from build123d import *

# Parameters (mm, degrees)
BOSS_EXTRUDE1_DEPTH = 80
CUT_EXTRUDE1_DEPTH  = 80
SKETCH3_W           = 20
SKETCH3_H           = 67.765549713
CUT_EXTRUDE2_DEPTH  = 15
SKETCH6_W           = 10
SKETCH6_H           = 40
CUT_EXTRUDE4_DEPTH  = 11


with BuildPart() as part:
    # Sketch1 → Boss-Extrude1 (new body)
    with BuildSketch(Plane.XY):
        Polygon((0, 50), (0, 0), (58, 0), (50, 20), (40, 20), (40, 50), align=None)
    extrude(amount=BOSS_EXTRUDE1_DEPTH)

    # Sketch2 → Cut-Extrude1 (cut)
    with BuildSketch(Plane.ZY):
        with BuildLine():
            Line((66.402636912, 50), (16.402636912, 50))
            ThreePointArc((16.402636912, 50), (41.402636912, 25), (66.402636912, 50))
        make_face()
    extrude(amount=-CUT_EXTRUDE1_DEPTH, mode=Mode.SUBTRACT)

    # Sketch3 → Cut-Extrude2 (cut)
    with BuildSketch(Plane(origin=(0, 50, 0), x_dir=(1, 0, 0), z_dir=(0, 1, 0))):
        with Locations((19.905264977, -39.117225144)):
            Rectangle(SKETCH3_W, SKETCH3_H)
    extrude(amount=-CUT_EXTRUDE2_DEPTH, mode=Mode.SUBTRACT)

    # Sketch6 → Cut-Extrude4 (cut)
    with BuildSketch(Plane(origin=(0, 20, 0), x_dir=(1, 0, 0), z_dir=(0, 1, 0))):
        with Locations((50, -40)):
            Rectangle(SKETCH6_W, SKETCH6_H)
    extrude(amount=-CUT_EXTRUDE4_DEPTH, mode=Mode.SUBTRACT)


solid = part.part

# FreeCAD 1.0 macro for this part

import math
import FreeCAD as App
import Part
import Sketcher

V = App.Vector


def add_polygon(sketch, points):
    """Adds a closed chain of lines whose ends are joined by coincident constraints."""
    first, n = sketch.GeometryCount, len(points)
    for a, b in zip(points, points[1:] + points[:1]):
        sketch.addGeometry(Part.LineSegment(App.Vector(*a, 0), App.Vector(*b, 0)), False)
    for i in range(n):
        sketch.addConstraint(Sketcher.Constraint("Coincident", first + i, 2, first + (i + 1) % n, 1))

doc = App.newDocument("Part")
body = doc.addObject("PartDesign::Body", "Body")

# Sketch on XY plane
sketch1 = doc.addObject("Sketcher::SketchObject", "Sketch")
body.addObject(sketch1)
sketch1.AttachmentSupport = (doc.XY_Plane, [""])
sketch1.MapMode = "FlatFace"
add_polygon(sketch1, [(0, 50), (0, 0), (58, 0), (50, 20), (40, 20), (40, 50)])  # lines 0-5
sketch1.addConstraint(Sketcher.Constraint("Vertical", 0))
sketch1.addConstraint(Sketcher.Constraint("Horizontal", 1))
sketch1.addConstraint(Sketcher.Constraint("Horizontal", 3))
sketch1.addConstraint(Sketcher.Constraint("Vertical", 4))
sketch1.addConstraint(Sketcher.Constraint("Horizontal", 5))
sketch1.addConstraint(Sketcher.Constraint("Coincident", 0, 2, -1, 1))
sketch1.addConstraint(Sketcher.Constraint("DistanceX", 1, 1, 1, 2, 58.0))
sketch1.addConstraint(Sketcher.Constraint("DistanceX", 3, 2, 3, 1, 10.0))
sketch1.addConstraint(Sketcher.Constraint("DistanceX", 5, 2, 5, 1, 40.0))
sketch1.addConstraint(Sketcher.Constraint("DistanceY", 0, 2, 0, 1, 50.0))
sketch1.addConstraint(Sketcher.Constraint("DistanceY", 4, 1, 4, 2, 30.0))
pad1 = doc.addObject("PartDesign::Pad", "Pad")
body.addObject(pad1)
pad1.Profile = sketch1
pad1.Length = 80

# Sketch on YZ plane
sketch2 = doc.addObject("Sketcher::SketchObject", "Sketch001")
body.addObject(sketch2)
sketch2.AttachmentSupport = (doc.YZ_Plane, [""])
sketch2.MapMode = "FlatFace"
sketch2.addGeometry(Part.LineSegment(V(50, 66.402637, 0), V(50, 16.402637, 0)), False)
sketch2.addGeometry(Part.ArcOfCircle(Part.Circle(V(50, 41.402637, 0), V(0, 0, 1), 25), math.radians(90), math.radians(270)), False)
sketch2.addConstraint(Sketcher.Constraint("Coincident", 0, 1, 1, 1))
sketch2.addConstraint(Sketcher.Constraint("Coincident", 1, 2, 0, 2))
sketch2.addConstraint(Sketcher.Constraint("Vertical", 0))
sketch2.addConstraint(Sketcher.Constraint("Vertical", 1, 3, 0, 1))
sketch2.addConstraint(Sketcher.Constraint("Radius", 1, 25.0))
sketch2.addConstraint(Sketcher.Constraint("DistanceX", -1, 1, 1, 3, 50.0))
sketch2.addConstraint(Sketcher.Constraint("DistanceY", -1, 1, 1, 3, 41.402637))
pocket1 = doc.addObject("PartDesign::Pocket", "Pocket")
body.addObject(pocket1)
pocket1.Profile = sketch2
pocket1.Length = 80
pocket1.Reversed = True

# Sketch on XZ plane
sketch3 = doc.addObject("Sketcher::SketchObject", "Sketch002")
body.addObject(sketch3)
sketch3.AttachmentSupport = (doc.XZ_Plane, [""])
sketch3.MapMode = "FlatFace"
sketch3.AttachmentOffset = App.Placement(V(0, 0, -50), App.Rotation())
add_polygon(sketch3, [(9.905265, 5.23445), (9.905265, 73), (29.905265, 73), (29.905265, 5.23445)])  # lines 0-3
sketch3.addConstraint(Sketcher.Constraint("Vertical", 0))
sketch3.addConstraint(Sketcher.Constraint("Horizontal", 1))
sketch3.addConstraint(Sketcher.Constraint("Vertical", 2))
sketch3.addConstraint(Sketcher.Constraint("Horizontal", 3))
sketch3.addConstraint(Sketcher.Constraint("DistanceX", 1, 1, 1, 2, 20.0))
sketch3.addConstraint(Sketcher.Constraint("DistanceY", -1, 1, 0, 2, 73.0))
sketch3.addConstraint(Sketcher.Constraint("DistanceY", 0, 1, 0, 2, 67.76555))
sketch3.addConstraint(Sketcher.Constraint("DistanceX", -1, 1, 0, 2, 9.905265))
pocket2 = doc.addObject("PartDesign::Pocket", "Pocket001")
body.addObject(pocket2)
pocket2.Profile = sketch3
pocket2.Length = 15
pocket2.Reversed = True

# Sketch on XZ plane
sketch4 = doc.addObject("Sketcher::SketchObject", "Sketch003")
body.addObject(sketch4)
sketch4.AttachmentSupport = (doc.XZ_Plane, [""])
sketch4.MapMode = "FlatFace"
sketch4.AttachmentOffset = App.Placement(V(0, 0, -20), App.Rotation())
add_polygon(sketch4, [(45, 20), (45, 60), (55, 60), (55, 20)])  # lines 0-3
sketch4.addConstraint(Sketcher.Constraint("Vertical", 0))
sketch4.addConstraint(Sketcher.Constraint("Horizontal", 1))
sketch4.addConstraint(Sketcher.Constraint("Vertical", 2))
sketch4.addConstraint(Sketcher.Constraint("Horizontal", 3))
sketch4.addConstraint(Sketcher.Constraint("DistanceX", 1, 1, 1, 2, 10.0))
sketch4.addConstraint(Sketcher.Constraint("DistanceY", 0, 1, 0, 2, 40.0))
sketch4.addConstraint(Sketcher.Constraint("DistanceX", -1, 1, 0, 2, 45.0))
sketch4.addConstraint(Sketcher.Constraint("DistanceY", -1, 1, 0, 2, 60.0))
pocket3 = doc.addObject("PartDesign::Pocket", "Pocket002")
body.addObject(pocket3)
pocket3.Profile = sketch4
pocket3.Length = 11
pocket3.Reversed = True

doc.recompute()
